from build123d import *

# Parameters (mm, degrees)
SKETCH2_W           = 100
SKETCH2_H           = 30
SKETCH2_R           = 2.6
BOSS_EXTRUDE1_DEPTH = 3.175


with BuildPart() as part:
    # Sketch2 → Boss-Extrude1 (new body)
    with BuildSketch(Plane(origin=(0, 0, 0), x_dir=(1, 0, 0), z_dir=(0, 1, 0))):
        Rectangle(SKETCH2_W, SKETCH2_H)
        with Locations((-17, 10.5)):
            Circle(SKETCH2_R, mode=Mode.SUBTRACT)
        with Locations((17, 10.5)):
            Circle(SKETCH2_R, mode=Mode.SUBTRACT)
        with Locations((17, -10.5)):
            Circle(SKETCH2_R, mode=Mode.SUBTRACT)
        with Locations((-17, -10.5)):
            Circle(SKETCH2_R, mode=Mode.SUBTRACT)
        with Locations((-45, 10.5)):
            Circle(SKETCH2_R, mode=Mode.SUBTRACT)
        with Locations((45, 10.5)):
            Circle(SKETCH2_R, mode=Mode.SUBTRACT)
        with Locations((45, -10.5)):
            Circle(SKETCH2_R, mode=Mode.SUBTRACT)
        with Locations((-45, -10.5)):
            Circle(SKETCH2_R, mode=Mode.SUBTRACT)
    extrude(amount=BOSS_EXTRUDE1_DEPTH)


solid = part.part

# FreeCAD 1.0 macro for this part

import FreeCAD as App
import Part
import Sketcher


def add_polygon(sketch, points):
    """Adds a closed chain of lines whose ends are joined by coincident constraints."""
    first, n = sketch.GeometryCount, len(points)
    for a, b in zip(points, points[1:] + points[:1]):
        sketch.addGeometry(Part.LineSegment(App.Vector(*a, 0), App.Vector(*b, 0)), False)
    for i in range(n):
        sketch.addConstraint(Sketcher.Constraint("Coincident", first + i, 2, first + (i + 1) % n, 1))

doc = App.newDocument("Part")
params = doc.addObject("Spreadsheet::Sheet", "Params")
for row, (alias, value) in enumerate([
    ("sketch1_diameter", "5.2 mm"),
    ("sketch1_width", "100 mm"),
    ("sketch1_height", "30 mm"),
    ("pad1_length", "3.175 mm"),
], start=1):
    params.set(f"A{row}", alias)
    params.set(f"B{row}", "=" + value)
    params.setAlias(f"B{row}", alias)

body = doc.addObject("PartDesign::Body", "Body")

# Sketch on XZ plane
sketch1 = doc.addObject("Sketcher::SketchObject", "Sketch")
body.addObject(sketch1)
sketch1.AttachmentSupport = (doc.XZ_Plane, [""])
sketch1.MapMode = "FlatFace"
add_polygon(sketch1, [(-50, -15), (-50, 15), (50, 15), (50, -15)])  # lines 0-3
sketch1.addGeometry(Part.Circle(App.Vector(-45, 10.5, 0), App.Vector(0, 0, 1), 2.6), False)  # 4
sketch1.addGeometry(Part.Circle(App.Vector(-17, 10.5, 0), App.Vector(0, 0, 1), 2.6), False)  # 5
sketch1.addGeometry(Part.Circle(App.Vector(17, 10.5, 0), App.Vector(0, 0, 1), 2.6), False)  # 6
sketch1.addGeometry(Part.Circle(App.Vector(45, 10.5, 0), App.Vector(0, 0, 1), 2.6), False)  # 7
sketch1.addGeometry(Part.Circle(App.Vector(-45, -10.5, 0), App.Vector(0, 0, 1), 2.6), False)  # 8
sketch1.addGeometry(Part.Circle(App.Vector(-17, -10.5, 0), App.Vector(0, 0, 1), 2.6), False)  # 9
sketch1.addGeometry(Part.Circle(App.Vector(17, -10.5, 0), App.Vector(0, 0, 1), 2.6), False)  # 10
sketch1.addGeometry(Part.Circle(App.Vector(45, -10.5, 0), App.Vector(0, 0, 1), 2.6), False)  # 11
sketch1.addConstraint([
    Sketcher.Constraint("Vertical", 0),
    Sketcher.Constraint("Horizontal", 1),
    Sketcher.Constraint("Vertical", 2),
    Sketcher.Constraint("Horizontal", 3),
    Sketcher.Constraint("Equal", 4, 5),
    Sketcher.Constraint("Equal", 5, 6),
    Sketcher.Constraint("Equal", 6, 7),
    Sketcher.Constraint("Equal", 7, 8),
    Sketcher.Constraint("Equal", 8, 9),
    Sketcher.Constraint("Equal", 9, 10),
    Sketcher.Constraint("Equal", 10, 11),
    Sketcher.Constraint("Symmetric", 7, 3, 8, 3, -1, 1),
    Sketcher.Constraint("Symmetric", 6, 3, 9, 3, -1, 1),
    Sketcher.Constraint("Symmetric", 5, 3, 10, 3, -1, 1),
    Sketcher.Constraint("Symmetric", 4, 3, 11, 3, -1, 1),
    Sketcher.Constraint("Symmetric", 0, 2, 2, 2, -1, 1),
    Sketcher.Constraint("Symmetric", 5, 3, 6, 3, -2),
    Sketcher.Constraint("Symmetric", 4, 3, 7, 3, -2),
    Sketcher.Constraint("Horizontal", 4, 3, 5, 3),
    Sketcher.Constraint("Diameter", 4, 5.2),
    Sketcher.Constraint("DistanceX", 1, 1, 1, 2, 100.0),
    Sketcher.Constraint("DistanceY", 0, 1, 0, 2, 30.0),
    Sketcher.Constraint("DistanceX", 4, 3, -1, 1, 45.0),
    Sketcher.Constraint("DistanceX", 5, 3, -1, 1, 17.0),
    Sketcher.Constraint("DistanceY", 8, 3, 4, 3, 21.0),
])
sketch1.setExpression("Constraints[23]", "Params.sketch1_diameter")
sketch1.setExpression("Constraints[24]", "Params.sketch1_width")
sketch1.setExpression("Constraints[25]", "Params.sketch1_height")
pad1 = doc.addObject("PartDesign::Pad", "Pad")
body.addObject(pad1)
pad1.Profile = sketch1
pad1.setExpression("Length", "Params.pad1_length")
pad1.Reversed = True

doc.recompute()
